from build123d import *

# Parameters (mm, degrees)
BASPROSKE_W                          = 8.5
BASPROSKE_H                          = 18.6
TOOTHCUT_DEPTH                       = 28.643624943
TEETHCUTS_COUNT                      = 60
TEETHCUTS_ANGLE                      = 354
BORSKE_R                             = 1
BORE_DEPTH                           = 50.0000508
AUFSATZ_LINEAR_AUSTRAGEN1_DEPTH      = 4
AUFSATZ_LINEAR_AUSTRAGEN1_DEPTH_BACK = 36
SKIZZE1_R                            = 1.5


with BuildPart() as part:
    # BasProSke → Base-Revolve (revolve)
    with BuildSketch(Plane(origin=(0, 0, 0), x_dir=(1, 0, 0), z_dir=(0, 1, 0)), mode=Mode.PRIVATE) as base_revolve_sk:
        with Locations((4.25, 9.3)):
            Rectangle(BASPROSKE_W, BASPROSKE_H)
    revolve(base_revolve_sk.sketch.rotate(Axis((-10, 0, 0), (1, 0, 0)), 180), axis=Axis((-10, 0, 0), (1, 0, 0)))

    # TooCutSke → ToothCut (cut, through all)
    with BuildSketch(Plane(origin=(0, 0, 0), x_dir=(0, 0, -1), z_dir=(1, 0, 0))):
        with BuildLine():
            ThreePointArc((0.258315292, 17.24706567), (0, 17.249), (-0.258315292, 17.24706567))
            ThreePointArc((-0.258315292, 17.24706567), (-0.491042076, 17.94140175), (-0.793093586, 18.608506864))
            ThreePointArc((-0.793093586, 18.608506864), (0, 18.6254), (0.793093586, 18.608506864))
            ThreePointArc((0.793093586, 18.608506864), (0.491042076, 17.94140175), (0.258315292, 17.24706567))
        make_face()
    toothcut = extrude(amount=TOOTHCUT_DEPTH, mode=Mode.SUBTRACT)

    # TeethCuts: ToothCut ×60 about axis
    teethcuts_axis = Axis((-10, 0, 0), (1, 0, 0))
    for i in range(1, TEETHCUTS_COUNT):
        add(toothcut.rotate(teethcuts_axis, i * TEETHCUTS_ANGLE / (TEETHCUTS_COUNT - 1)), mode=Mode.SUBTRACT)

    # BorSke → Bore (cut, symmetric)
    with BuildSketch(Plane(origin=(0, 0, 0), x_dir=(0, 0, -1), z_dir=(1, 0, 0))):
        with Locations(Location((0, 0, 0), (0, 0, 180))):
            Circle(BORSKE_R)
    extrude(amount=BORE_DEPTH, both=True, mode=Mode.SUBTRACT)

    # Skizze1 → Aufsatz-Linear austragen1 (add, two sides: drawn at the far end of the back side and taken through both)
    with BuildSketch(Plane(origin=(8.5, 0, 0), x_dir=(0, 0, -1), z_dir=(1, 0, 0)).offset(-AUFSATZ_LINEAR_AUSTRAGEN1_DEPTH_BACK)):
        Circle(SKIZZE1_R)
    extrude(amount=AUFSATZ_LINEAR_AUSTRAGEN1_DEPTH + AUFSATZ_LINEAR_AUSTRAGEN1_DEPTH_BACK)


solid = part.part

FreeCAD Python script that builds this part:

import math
import FreeCAD as App
import Part
import Sketcher
from FreeCAD import Vector
Q = App.Units.Quantity

doc = App.newDocument("Part")
body = doc.addObject("PartDesign::Body", "Body")

# Sketch on XZ plane
sketch1 = body.newObject("Sketcher::SketchObject", "Sketch")
sketch1.AttachmentSupport = (doc.getObject("XZ_Plane"), [""])
sketch1.MapMode = "FlatFace"
sketch1.addGeometry([
    Part.LineSegment(Vector(0, -19, 0), Vector(0, 0, 0)),
    Part.LineSegment(Vector(0, 0, 0), Vector(8, 0, 0)),
    Part.LineSegment(Vector(8, 0, 0), Vector(8, -19, 0)),
    Part.LineSegment(Vector(8, -19, 0), Vector(0, -19, 0)),
], False)
sketch1.addConstraint([
    Sketcher.Constraint("Coincident", 0, 2, 1, 1),
    Sketcher.Constraint("Coincident", 1, 2, 2, 1),
    Sketcher.Constraint("Coincident", 2, 2, 3, 1),
    Sketcher.Constraint("Coincident", 3, 2, 0, 1),
    Sketcher.Constraint("Vertical", 0),
    Sketcher.Constraint("Horizontal", 1),
    Sketcher.Constraint("Vertical", 2),
    Sketcher.Constraint("Horizontal", 3),
    Sketcher.Constraint("Coincident", 0, 2, -1, 1),
    Sketcher.Constraint("DistanceX", 1, 1, 1, 2, Q("8.5 mm")),
    Sketcher.Constraint("DistanceY", 0, 1, 0, 2, Q("18.6 mm")),
])
revolution = body.newObject("PartDesign::Revolution", "Revolution")
revolution.Profile = sketch1
revolution.ReferenceAxis = (sketch1, ["H_Axis"])
revolution.Angle = 360

# Sketch on YZ plane
sketch2 = body.newObject("Sketcher::SketchObject", "Sketch001")
sketch2.AttachmentSupport = (doc.getObject("YZ_Plane"), [""])
sketch2.MapMode = "FlatFace"
sketch2.addGeometry([
    Part.ArcOfCircle(Part.Circle(Vector(0, 0, 0), Vector(0, 0, 1), 17.2), math.radians(-0.86), math.radians(0.86)),
    Part.ArcOfCircle(Part.Circle(Vector(15.3, -7.2, 0), Vector(0, 0, 1), 7.2), math.radians(62.72), math.radians(74.38)),
    Part.ArcOfCircle(Part.Circle(Vector(0, 0, 0), Vector(0, 0, 1), 18.6), math.radians(-2.44), math.radians(2.44)),
    Part.ArcOfCircle(Part.Circle(Vector(15.3, 7.2, 0), Vector(0, 0, 1), 7.2), math.radians(-74.38), math.radians(-62.72)),
], False)
sketch2.addConstraint([
    Sketcher.Constraint("Coincident", 0, 1, 1, 2),
    Sketcher.Constraint("Coincident", 1, 1, 2, 1),
    Sketcher.Constraint("Coincident", 2, 2, 3, 2),
    Sketcher.Constraint("Coincident", 3, 1, 0, 2),
    Sketcher.Constraint("Coincident", 0, 3, -1, 1),
    Sketcher.Constraint("Coincident", 2, 3, -1, 1),
    Sketcher.Constraint("Equal", 1, 3),
    Sketcher.Constraint("Symmetric", 1, 3, 3, 3, -1),
    Sketcher.Constraint("Radius", 1, Q("7.2 mm")),
    Sketcher.Constraint("Radius", 2, Q("18.6254 mm")),
    Sketcher.Constraint("Radius", 0, Q("17.249004 mm")),
    Sketcher.Constraint("DistanceX", -1, 1, 1, 3, Q("15.309019 mm")),
    Sketcher.Constraint("DistanceY", 0, 1, 3, 3, Q("7.450891 mm")),
])
pocket1 = body.newObject("PartDesign::Pocket", "Pocket")
pocket1.Profile = sketch2
pocket1.Type = "ThroughAll"
pocket1.Reversed = True
doc.recompute()

polarpattern = body.newObject("PartDesign::PolarPattern", "PolarPattern")
polarpattern.Originals = [pocket1]
polarpattern.Axis = (doc.getObject("X_Axis"), [""])
polarpattern.Angle = 360
polarpattern.Occurrences = 60
body.Tip = polarpattern

# Sketch on YZ plane
sketch3 = body.newObject("Sketcher::SketchObject", "Sketch002")
sketch3.AttachmentSupport = (doc.getObject("YZ_Plane"), [""])
sketch3.MapMode = "FlatFace"
sketch3.addGeometry(Part.Circle(Vector(0, 0, 0), Vector(0, 0, 1), 1), False)
sketch3.addConstraint([
    Sketcher.Constraint("Coincident", 0, 3, -1, 1),
    Sketcher.Constraint("Diameter", 0, Q("2 mm")),
])
pocket2 = body.newObject("PartDesign::Pocket", "Pocket001")
pocket2.Profile = sketch3
pocket2.Length = 100.000102
pocket2.Midplane = True

# Sketch on YZ plane
sketch4 = body.newObject("Sketcher::SketchObject", "Sketch003")
sketch4.AttachmentSupport = (doc.getObject("YZ_Plane"), [""])
sketch4.MapMode = "FlatFace"
sketch4.AttachmentOffset = App.Placement(Vector(0, 0, 8.5), App.Rotation())
sketch4.addGeometry(Part.Circle(Vector(0, 0, 0), Vector(0, 0, 1), 1.5), False)
sketch4.addConstraint([
    Sketcher.Constraint("Coincident", 0, 3, -1, 1),
    Sketcher.Constraint("Diameter", 0, Q("3 mm")),
])
pad1 = body.newObject("PartDesign::Pad", "Pad")
pad1.Profile = sketch4
pad1.Type = "TwoLengths"
pad1.Length = 4
pad1.Length2 = 36

doc.recompute()
